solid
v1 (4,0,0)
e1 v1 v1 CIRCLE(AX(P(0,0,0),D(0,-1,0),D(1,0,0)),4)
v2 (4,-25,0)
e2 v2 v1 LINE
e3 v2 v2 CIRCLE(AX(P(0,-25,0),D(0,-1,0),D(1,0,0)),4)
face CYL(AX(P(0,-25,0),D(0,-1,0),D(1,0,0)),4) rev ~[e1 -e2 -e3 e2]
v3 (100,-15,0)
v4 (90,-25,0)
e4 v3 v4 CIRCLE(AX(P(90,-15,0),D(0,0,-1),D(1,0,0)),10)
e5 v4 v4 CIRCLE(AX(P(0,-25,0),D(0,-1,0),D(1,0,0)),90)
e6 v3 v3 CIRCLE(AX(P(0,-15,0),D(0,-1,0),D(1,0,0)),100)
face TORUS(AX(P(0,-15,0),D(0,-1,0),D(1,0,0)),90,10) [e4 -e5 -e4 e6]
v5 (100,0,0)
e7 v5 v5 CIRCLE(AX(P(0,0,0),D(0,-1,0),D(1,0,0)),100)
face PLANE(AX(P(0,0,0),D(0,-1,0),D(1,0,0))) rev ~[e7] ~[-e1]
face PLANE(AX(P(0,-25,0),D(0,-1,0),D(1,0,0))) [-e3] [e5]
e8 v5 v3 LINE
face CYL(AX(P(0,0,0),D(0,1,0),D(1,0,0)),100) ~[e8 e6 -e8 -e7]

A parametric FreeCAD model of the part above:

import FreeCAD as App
import Part
import Sketcher
from FreeCAD import Vector
Q = App.Units.Quantity


def edges_at(feature, points):
    """Names of the edges that pass closest to the given points."""
    edges = feature.Shape.Edges
    near = lambda p: min(range(len(edges)), key=lambda i: edges[i].distToShape(Part.Vertex(*p))[0])
    return sorted({f"Edge{near(p) + 1}" for p in points})

doc = App.newDocument("Part")
params = doc.addObject("Spreadsheet::Sheet", "Params")
for row, (alias, value) in enumerate([
    ("sketch1_diameter", "200 mm"),
    ("pad1_length", "25 mm"),
    ("fillet_radius", "10 mm"),
    ("sketch2_diameter", "8 mm"),
    ("pocket1_length", "25 mm"),
], start=1):
    params.set(f"A{row}", alias)
    params.set(f"B{row}", "=" + value)
    params.setAlias(f"B{row}", alias)

body = doc.addObject("PartDesign::Body", "Body")

sketch1 = body.newObject("Sketcher::SketchObject", "Sketch")
sketch1.AttachmentSupport = (doc.getObject("XZ_Plane"), [""])
sketch1.MapMode = "FlatFace"
sketch1.addGeometry(Part.Circle(Vector(0, 0, 0), Vector(0, 0, 1), 100), False)
sketch1.addConstraint(Sketcher.Constraint("Coincident", 0, 3, -1, 1))
sketch1.addConstraint(Sketcher.Constraint("Diameter", 0, Q("200 mm")))
sketch1.setExpression("Constraints[1]", "Params.sketch1_diameter")
pad1 = body.newObject("PartDesign::Pad", "Pad")
pad1.Profile = sketch1
pad1.setExpression("Length", "Params.pad1_length")
doc.recompute()

fillet = body.newObject("PartDesign::Fillet", "Fillet")
fillet.Base = (pad1, edges_at(pad1, [(-100, -25, 0)]))
fillet.setExpression("Radius", "Params.fillet_radius")

sketch2 = body.newObject("Sketcher::SketchObject", "Sketch001")
sketch2.AttachmentSupport = (doc.getObject("XZ_Plane"), [""])
sketch2.MapMode = "FlatFace"
sketch2.AttachmentOffset = App.Placement(Vector(0, 0, 25), App.Rotation())
sketch2.addGeometry(Part.Circle(Vector(0, 0, 0), Vector(0, 0, 1), 4), False)
sketch2.addConstraint(Sketcher.Constraint("Coincident", 0, 3, -1, 1))
sketch2.addConstraint(Sketcher.Constraint("Diameter", 0, Q("8 mm")))
sketch2.setExpression("Constraints[1]", "Params.sketch2_diameter")
pocket1 = body.newObject("PartDesign::Pocket", "Pocket")
pocket1.Profile = sketch2
pocket1.setExpression("Length", "Params.pocket1_length")

doc.recompute()
